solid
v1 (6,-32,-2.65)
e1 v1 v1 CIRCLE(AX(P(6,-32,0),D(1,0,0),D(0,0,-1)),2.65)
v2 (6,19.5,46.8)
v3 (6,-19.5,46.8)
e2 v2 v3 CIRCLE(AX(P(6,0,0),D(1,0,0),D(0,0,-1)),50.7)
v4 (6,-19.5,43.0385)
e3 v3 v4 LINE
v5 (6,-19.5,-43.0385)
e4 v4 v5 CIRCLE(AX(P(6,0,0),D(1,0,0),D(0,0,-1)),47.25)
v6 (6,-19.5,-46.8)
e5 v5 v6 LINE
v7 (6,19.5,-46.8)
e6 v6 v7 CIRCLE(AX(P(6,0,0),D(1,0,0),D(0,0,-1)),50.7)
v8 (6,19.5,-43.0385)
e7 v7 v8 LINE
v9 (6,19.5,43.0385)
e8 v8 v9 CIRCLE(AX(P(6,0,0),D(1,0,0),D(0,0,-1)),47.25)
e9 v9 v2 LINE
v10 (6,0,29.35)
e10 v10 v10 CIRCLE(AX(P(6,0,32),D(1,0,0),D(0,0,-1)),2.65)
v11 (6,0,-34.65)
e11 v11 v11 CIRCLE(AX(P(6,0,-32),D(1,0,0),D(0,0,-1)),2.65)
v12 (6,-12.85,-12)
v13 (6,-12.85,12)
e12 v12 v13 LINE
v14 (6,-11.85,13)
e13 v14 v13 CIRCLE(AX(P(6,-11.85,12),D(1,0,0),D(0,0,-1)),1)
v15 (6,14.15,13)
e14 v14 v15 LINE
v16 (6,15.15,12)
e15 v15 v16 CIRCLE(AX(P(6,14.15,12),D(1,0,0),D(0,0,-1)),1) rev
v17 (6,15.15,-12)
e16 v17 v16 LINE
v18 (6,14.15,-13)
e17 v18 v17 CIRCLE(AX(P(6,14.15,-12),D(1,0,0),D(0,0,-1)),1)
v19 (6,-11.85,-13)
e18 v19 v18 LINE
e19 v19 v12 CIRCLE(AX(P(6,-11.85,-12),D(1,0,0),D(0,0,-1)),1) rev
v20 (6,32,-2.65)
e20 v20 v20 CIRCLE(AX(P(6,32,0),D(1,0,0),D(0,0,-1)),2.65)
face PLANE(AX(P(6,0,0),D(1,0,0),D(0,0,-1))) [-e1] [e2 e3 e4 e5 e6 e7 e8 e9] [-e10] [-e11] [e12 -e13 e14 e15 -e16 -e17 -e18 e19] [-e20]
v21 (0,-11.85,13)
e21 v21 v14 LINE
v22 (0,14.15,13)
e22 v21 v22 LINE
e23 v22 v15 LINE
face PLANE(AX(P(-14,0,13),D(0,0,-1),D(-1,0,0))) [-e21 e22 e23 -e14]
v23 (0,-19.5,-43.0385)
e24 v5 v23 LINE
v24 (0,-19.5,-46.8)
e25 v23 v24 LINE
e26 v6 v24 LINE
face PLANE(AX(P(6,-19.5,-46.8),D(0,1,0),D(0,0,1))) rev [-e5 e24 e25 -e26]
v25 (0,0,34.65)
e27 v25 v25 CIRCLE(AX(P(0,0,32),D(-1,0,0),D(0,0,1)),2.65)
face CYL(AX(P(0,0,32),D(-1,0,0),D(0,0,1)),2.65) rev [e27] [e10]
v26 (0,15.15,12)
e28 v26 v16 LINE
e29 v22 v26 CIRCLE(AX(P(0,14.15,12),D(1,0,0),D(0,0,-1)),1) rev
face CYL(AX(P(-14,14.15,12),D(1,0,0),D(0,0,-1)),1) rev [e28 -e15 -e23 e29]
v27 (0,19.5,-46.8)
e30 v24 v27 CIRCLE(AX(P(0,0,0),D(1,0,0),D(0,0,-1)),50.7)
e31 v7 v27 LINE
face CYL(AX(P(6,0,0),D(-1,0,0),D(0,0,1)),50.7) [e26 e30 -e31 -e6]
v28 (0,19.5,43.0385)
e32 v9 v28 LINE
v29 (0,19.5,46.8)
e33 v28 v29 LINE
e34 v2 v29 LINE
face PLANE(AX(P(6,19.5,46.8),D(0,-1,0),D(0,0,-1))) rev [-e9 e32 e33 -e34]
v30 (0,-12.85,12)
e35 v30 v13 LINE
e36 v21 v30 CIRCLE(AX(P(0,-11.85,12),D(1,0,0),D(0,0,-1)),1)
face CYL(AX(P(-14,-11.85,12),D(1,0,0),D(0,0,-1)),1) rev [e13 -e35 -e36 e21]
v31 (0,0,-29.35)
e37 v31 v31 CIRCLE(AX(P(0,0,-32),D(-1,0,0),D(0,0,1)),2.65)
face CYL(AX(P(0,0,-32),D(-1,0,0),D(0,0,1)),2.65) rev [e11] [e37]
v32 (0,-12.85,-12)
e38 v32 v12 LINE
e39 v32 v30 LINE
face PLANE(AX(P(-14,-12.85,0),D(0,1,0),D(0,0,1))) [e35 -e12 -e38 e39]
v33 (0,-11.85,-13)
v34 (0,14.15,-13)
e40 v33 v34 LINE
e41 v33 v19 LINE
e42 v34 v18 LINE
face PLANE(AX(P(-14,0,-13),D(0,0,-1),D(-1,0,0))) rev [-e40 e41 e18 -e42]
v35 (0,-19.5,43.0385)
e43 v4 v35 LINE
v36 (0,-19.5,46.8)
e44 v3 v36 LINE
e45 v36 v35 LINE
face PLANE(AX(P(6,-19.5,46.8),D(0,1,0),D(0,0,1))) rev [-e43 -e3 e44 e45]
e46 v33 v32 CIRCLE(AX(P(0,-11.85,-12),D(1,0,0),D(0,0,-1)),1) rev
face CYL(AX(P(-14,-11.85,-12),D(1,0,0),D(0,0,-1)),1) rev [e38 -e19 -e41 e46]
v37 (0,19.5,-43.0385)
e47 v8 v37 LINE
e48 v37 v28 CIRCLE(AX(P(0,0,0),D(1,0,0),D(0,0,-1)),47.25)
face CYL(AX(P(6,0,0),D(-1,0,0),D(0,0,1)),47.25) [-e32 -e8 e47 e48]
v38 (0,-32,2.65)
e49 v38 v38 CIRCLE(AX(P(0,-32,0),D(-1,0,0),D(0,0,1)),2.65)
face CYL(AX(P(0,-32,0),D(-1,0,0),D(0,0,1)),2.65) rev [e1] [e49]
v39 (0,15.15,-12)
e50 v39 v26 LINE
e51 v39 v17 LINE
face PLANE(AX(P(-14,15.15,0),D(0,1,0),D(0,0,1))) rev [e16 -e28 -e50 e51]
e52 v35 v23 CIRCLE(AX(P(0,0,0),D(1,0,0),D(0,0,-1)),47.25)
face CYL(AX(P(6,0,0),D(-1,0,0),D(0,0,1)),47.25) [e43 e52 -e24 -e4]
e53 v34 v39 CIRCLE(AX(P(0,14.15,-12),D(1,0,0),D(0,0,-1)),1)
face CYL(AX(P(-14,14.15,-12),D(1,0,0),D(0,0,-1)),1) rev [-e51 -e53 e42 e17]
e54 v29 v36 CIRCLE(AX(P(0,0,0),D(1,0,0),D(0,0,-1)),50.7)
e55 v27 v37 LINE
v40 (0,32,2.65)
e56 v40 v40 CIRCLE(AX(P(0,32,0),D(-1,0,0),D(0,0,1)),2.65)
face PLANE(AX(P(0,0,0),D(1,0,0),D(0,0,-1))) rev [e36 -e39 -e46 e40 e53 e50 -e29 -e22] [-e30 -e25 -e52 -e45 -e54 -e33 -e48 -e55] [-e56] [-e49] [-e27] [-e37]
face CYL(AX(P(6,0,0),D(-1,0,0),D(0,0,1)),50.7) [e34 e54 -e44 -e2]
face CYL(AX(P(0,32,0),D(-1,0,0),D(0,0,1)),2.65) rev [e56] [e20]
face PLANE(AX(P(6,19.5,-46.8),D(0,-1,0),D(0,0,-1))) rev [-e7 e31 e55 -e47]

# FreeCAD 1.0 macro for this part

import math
import FreeCAD as App
import Part
import Sketcher
from FreeCAD import Vector
Q = App.Units.Quantity

doc = App.newDocument("Part")
body = doc.addObject("PartDesign::Body", "Body")

sketch1 = body.newObject("Sketcher::SketchObject", "Sketch")
sketch1.AttachmentSupport = (doc.getObject("YZ_Plane"), [""])
sketch1.MapMode = "FlatFace"
sketch1.addGeometry(Part.LineSegment(Vector(19.5, 43.0385, 0), Vector(19.5, 46.8, 0)), False)
sketch1.addGeometry(Part.ArcOfCircle(Part.Circle(Vector(0, 0, 0), Vector(0, 0, 1), 50.7), math.radians(67.380135), math.radians(112.619865)), False)
sketch1.addGeometry(Part.LineSegment(Vector(-19.5, 46.8, 0), Vector(-19.5, 43.0385, 0)), False)
sketch1.addGeometry(Part.ArcOfCircle(Part.Circle(Vector(0, 0, 0), Vector(0, 0, 1), 47.25), math.radians(114.374458), math.radians(245.625542)), False)
sketch1.addGeometry(Part.LineSegment(Vector(-19.5, -43.0385, 0), Vector(-19.5, -46.8, 0)), False)
sketch1.addGeometry(Part.ArcOfCircle(Part.Circle(Vector(0, 0, 0), Vector(0, 0, 1), 50.7), math.radians(-112.619865), math.radians(-67.380135)), False)
sketch1.addGeometry(Part.LineSegment(Vector(19.5, -46.8, 0), Vector(19.5, -43.0385, 0)), False)
sketch1.addGeometry(Part.ArcOfCircle(Part.Circle(Vector(0, 0, 0), Vector(0, 0, 1), 47.25), math.radians(-65.625542), math.radians(65.625542)), False)
sketch1.addConstraint(Sketcher.Constraint("Coincident", 0, 2, 1, 1))
sketch1.addConstraint(Sketcher.Constraint("Coincident", 1, 2, 2, 1))
sketch1.addConstraint(Sketcher.Constraint("Coincident", 2, 2, 3, 1))
sketch1.addConstraint(Sketcher.Constraint("Coincident", 3, 2, 4, 1))
sketch1.addConstraint(Sketcher.Constraint("Coincident", 4, 2, 5, 1))
sketch1.addConstraint(Sketcher.Constraint("Coincident", 5, 2, 6, 1))
sketch1.addConstraint(Sketcher.Constraint("Coincident", 6, 2, 7, 1))
sketch1.addConstraint(Sketcher.Constraint("Coincident", 7, 2, 0, 1))
sketch1.addConstraint(Sketcher.Constraint("Vertical", 0))
sketch1.addConstraint(Sketcher.Constraint("Vertical", 2))
sketch1.addConstraint(Sketcher.Constraint("Vertical", 4))
sketch1.addConstraint(Sketcher.Constraint("Vertical", 6))
sketch1.addConstraint(Sketcher.Constraint("Coincident", 1, 3, -1, 1))
sketch1.addConstraint(Sketcher.Constraint("Coincident", 3, 3, -1, 1))
sketch1.addConstraint(Sketcher.Constraint("Coincident", 5, 3, -1, 1))
sketch1.addConstraint(Sketcher.Constraint("Coincident", 7, 3, -1, 1))
sketch1.addConstraint(Sketcher.Constraint("Equal", 1, 5))
sketch1.addConstraint(Sketcher.Constraint("Equal", 3, 7))
sketch1.addConstraint(Sketcher.Constraint("Horizontal", 0, 2, 1, 2))
sketch1.addConstraint(Sketcher.Constraint("Horizontal", 4, 2, 5, 2))
sketch1.addConstraint(Sketcher.Constraint("Vertical", 2, 2, 3, 2))
sketch1.addConstraint(Sketcher.Constraint("Radius", 1, Q("50.7 mm")))
sketch1.addConstraint(Sketcher.Constraint("Radius", 3, Q("47.25 mm")))
sketch1.addConstraint(Sketcher.Constraint("DistanceX", 1, 2, 0, 2, Q("39 mm")))
pad1 = body.newObject("PartDesign::Pad", "Pad")
pad1.Profile = sketch1
pad1.Length = 6

sketch2 = body.newObject("Sketcher::SketchObject", "Sketch001")
sketch2.AttachmentSupport = (doc.getObject("YZ_Plane"), [""])
sketch2.MapMode = "FlatFace"
sketch2.AttachmentOffset = App.Placement(Vector(0, 0, 6), App.Rotation())
sketch2.addGeometry(Part.ArcOfCircle(Part.Circle(Vector(14.15, -12, 0), Vector(0, 0, 1), 1), math.radians(-90), math.radians(0)), False)
sketch2.addGeometry(Part.LineSegment(Vector(15.15, -12, 0), Vector(15.15, 12, 0)), False)
sketch2.addGeometry(Part.ArcOfCircle(Part.Circle(Vector(14.15, 12, 0), Vector(0, 0, 1), 1), math.radians(0), math.radians(90)), False)
sketch2.addGeometry(Part.LineSegment(Vector(14.15, 13, 0), Vector(-11.85, 13, 0)), False)
sketch2.addGeometry(Part.ArcOfCircle(Part.Circle(Vector(-11.85, 12, 0), Vector(0, 0, 1), 1), math.radians(90), math.radians(180)), False)
sketch2.addGeometry(Part.LineSegment(Vector(-12.85, 12, 0), Vector(-12.85, -12, 0)), False)
sketch2.addGeometry(Part.ArcOfCircle(Part.Circle(Vector(-11.85, -12, 0), Vector(0, 0, 1), 1), math.radians(-180), math.radians(-90)), False)
sketch2.addGeometry(Part.LineSegment(Vector(-11.85, -13, 0), Vector(14.15, -13, 0)), False)
sketch2.addConstraint(Sketcher.Constraint("Tangent", 0, 2, 1, 1))
sketch2.addConstraint(Sketcher.Constraint("Tangent", 1, 2, 2, 1))
sketch2.addConstraint(Sketcher.Constraint("Tangent", 2, 2, 3, 1))
sketch2.addConstraint(Sketcher.Constraint("Tangent", 3, 2, 4, 1))
sketch2.addConstraint(Sketcher.Constraint("Tangent", 4, 2, 5, 1))
sketch2.addConstraint(Sketcher.Constraint("Tangent", 5, 2, 6, 1))
sketch2.addConstraint(Sketcher.Constraint("Tangent", 6, 2, 7, 1))
sketch2.addConstraint(Sketcher.Constraint("Tangent", 7, 2, 0, 1))
sketch2.addConstraint(Sketcher.Constraint("Vertical", 1))
sketch2.addConstraint(Sketcher.Constraint("Horizontal", 3))
sketch2.addConstraint(Sketcher.Constraint("Vertical", 5))
sketch2.addConstraint(Sketcher.Constraint("Horizontal", 7))
sketch2.addConstraint(Sketcher.Constraint("Equal", 0, 2))
sketch2.addConstraint(Sketcher.Constraint("Equal", 2, 4))
sketch2.addConstraint(Sketcher.Constraint("Equal", 4, 6))
sketch2.addConstraint(Sketcher.Constraint("Radius", 0, Q("1 mm")))
sketch2.addConstraint(Sketcher.Constraint("DistanceX", 3, 2, 3, 1, Q("26 mm")))
sketch2.addConstraint(Sketcher.Constraint("DistanceY", 1, 1, 1, 2, Q("24 mm")))
sketch2.addConstraint(Sketcher.Constraint("DistanceY", 0, 3, -1, 1, Q("12 mm")))
sketch2.addConstraint(Sketcher.Constraint("DistanceX", -1, 1, 0, 3, Q("14.15 mm")))
pocket1 = body.newObject("PartDesign::Pocket", "Pocket")
pocket1.Profile = sketch2
pocket1.Length = 20

sketch3 = body.newObject("Sketcher::SketchObject", "Sketch002")
sketch3.AttachmentSupport = (doc.getObject("YZ_Plane"), [""])
sketch3.MapMode = "FlatFace"
sketch3.addGeometry(Part.Circle(Vector(0, -32, 0), Vector(0, 0, 1), 2.65), False)
sketch3.addGeometry(Part.Circle(Vector(32, 0, 0), Vector(0, 0, 1), 2.65), False)
sketch3.addGeometry(Part.Circle(Vector(0, 32, 0), Vector(0, 0, 1), 2.65), False)
sketch3.addGeometry(Part.Circle(Vector(-32, 0, 0), Vector(0, 0, 1), 2.65), False)
sketch3.addConstraint(Sketcher.Constraint("Equal", 0, 1))
sketch3.addConstraint(Sketcher.Constraint("Equal", 1, 2))
sketch3.addConstraint(Sketcher.Constraint("Equal", 2, 3))
sketch3.addConstraint(Sketcher.Constraint("Symmetric", 0, 3, 2, 3, -1, 1))
sketch3.addConstraint(Sketcher.Constraint("Symmetric", 1, 3, 3, 3, -1, 1))
sketch3.addConstraint(Sketcher.Constraint("PointOnObject", 0, 3, -2))
sketch3.addConstraint(Sketcher.Constraint("PointOnObject", 1, 3, -1))
sketch3.addConstraint(Sketcher.Constraint("Diameter", 0, Q("5.3 mm")))
sketch3.addConstraint(Sketcher.Constraint("DistanceY", 0, 3, -1, 1, Q("32 mm")))
sketch3.addConstraint(Sketcher.Constraint("DistanceX", -1, 1, 1, 3, Q("32 mm")))
doc.recompute()
hole = body.newObject("PartDesign::Hole", "Hole")
hole.Profile = sketch3
hole.ThreadType = "None"
hole.Diameter = 5.3
hole.DepthType = "Dimension"
hole.Depth = 15
hole.DrillPoint = "Angled"
hole.DrillPointAngle = 118
hole.Reversed = True

doc.recompute()
